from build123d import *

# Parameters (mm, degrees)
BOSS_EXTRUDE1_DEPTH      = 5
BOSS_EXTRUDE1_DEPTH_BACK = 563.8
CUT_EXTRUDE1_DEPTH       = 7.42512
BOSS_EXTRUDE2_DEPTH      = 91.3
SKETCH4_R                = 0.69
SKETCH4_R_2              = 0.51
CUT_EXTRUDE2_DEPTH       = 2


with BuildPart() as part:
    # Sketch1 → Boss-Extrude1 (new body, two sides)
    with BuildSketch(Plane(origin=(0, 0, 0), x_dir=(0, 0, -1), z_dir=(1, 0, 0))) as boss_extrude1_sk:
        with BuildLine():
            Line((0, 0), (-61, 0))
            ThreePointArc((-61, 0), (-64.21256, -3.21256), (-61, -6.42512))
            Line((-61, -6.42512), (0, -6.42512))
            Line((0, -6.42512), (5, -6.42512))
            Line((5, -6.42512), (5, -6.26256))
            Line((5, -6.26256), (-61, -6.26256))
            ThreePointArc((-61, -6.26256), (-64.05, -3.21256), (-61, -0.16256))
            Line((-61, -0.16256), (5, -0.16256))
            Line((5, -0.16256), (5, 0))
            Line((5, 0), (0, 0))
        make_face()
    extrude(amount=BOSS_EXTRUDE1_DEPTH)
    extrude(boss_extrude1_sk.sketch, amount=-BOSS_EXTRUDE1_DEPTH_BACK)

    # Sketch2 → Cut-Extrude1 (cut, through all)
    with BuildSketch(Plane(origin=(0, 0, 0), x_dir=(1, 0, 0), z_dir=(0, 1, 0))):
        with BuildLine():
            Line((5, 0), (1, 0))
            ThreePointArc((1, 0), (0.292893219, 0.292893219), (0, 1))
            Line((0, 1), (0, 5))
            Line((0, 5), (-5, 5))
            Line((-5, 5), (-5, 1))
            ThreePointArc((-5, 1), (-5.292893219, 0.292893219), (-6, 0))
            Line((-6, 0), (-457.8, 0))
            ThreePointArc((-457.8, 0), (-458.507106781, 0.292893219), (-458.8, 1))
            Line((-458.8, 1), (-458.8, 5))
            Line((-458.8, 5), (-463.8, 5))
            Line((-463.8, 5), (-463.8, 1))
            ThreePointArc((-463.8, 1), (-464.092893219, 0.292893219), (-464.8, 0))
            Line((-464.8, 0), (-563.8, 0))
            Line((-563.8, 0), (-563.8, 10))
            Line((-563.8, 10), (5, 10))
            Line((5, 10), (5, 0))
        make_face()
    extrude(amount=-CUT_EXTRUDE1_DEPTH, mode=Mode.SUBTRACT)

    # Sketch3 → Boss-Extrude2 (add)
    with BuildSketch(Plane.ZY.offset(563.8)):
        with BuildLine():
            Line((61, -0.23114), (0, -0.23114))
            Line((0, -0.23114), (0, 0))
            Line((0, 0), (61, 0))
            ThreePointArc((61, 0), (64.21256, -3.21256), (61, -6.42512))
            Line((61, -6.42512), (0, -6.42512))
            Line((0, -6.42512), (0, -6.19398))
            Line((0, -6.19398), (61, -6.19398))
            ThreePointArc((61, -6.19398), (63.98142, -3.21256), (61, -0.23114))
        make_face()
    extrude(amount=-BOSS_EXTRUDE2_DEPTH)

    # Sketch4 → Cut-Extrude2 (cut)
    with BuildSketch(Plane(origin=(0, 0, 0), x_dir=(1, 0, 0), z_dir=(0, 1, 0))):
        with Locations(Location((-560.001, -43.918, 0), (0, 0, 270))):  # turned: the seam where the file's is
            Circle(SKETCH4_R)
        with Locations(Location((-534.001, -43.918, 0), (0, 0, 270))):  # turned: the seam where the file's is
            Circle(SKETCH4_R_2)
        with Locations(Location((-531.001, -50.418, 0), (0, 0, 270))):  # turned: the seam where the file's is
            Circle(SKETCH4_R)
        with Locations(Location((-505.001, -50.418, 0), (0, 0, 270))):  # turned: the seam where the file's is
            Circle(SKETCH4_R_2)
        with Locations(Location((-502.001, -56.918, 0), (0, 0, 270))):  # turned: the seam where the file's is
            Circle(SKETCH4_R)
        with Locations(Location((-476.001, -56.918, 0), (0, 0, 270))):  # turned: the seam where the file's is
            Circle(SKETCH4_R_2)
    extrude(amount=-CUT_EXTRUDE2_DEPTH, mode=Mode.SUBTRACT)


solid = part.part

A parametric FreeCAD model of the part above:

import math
import FreeCAD as App
import Part
import Sketcher

V = App.Vector
Q = App.Units.Quantity

doc = App.newDocument("Part")
params = doc.addObject("Spreadsheet::Sheet", "Params")
for row, (alias, value) in enumerate([
    ("sketch1_height", "66 mm"),
    ("sketch1_radius", "3.05 mm"),
    ("pad1_length", "5 mm"),
    ("pad1_length2", "563.8 mm"),
    ("sketch2_radius", "1 mm"),
    ("sketch2_width", "4 mm"),
    ("sketch2_width2", "99 mm"),
    ("sketch2_width3", "5 mm"),
    ("sketch2_height", "10 mm"),
    ("sketch3_height", "61 mm"),
    ("pad2_length", "91.3 mm"),
    ("sketch4_diameter", "1.38 mm"),
    ("sketch4_diameter2", "1.02 mm"),
    ("pocket2_length", "2 mm"),
], start=1):
    params.set(f"A{row}", alias)
    params.set(f"B{row}", "=" + value)
    params.setAlias(f"B{row}", alias)

body = doc.addObject("PartDesign::Body", "Body")

# Sketch on YZ plane
sketch1 = doc.addObject("Sketcher::SketchObject", "Sketch")
body.addObject(sketch1)
sketch1.AttachmentSupport = (doc.YZ_Plane, [""])
sketch1.MapMode = "FlatFace"
sketch1.addGeometry([
    Part.ArcOfCircle(Part.Circle(V(-3.21256, 61, 0), V(0, 0, 1), 3.21256), math.radians(0), math.radians(180)),  # 0
    Part.LineSegment(V(-6.42512, 61, 0), V(-6.42512, -5, 0)),  # 1
    Part.LineSegment(V(-6.42512, -5, 0), V(-6.26256, -5, 0)),  # 2
    Part.LineSegment(V(-6.26256, -5, 0), V(-6.26256, 61, 0)),  # 3
    Part.ArcOfCircle(Part.Circle(V(-3.21256, 61, 0), V(0, 0, 1), 3.05), math.radians(0), math.radians(180)),  # 4
    Part.LineSegment(V(-0.16256, 61, 0), V(-0.16256, -5, 0)),  # 5
    Part.LineSegment(V(-0.16256, -5, 0), V(0, -5, 0)),  # 6
    Part.LineSegment(V(0, -5, 0), V(0, 61, 0)),  # 7
], False)
sketch1.addConstraint([
    Sketcher.Constraint("Tangent", 0, 2, 1, 1),
    Sketcher.Constraint("Coincident", 1, 2, 2, 1),
    Sketcher.Constraint("Coincident", 2, 2, 3, 1),
    Sketcher.Constraint("Tangent", 3, 2, 4, 2),
    Sketcher.Constraint("Tangent", 4, 1, 5, 1),
    Sketcher.Constraint("Coincident", 5, 2, 6, 1),
    Sketcher.Constraint("Coincident", 6, 2, 7, 1),
    Sketcher.Constraint("Tangent", 7, 2, 0, 1),
    Sketcher.Constraint("Vertical", 1),
    Sketcher.Constraint("Horizontal", 2),
    Sketcher.Constraint("Vertical", 3),
    Sketcher.Constraint("Vertical", 5),
    Sketcher.Constraint("Horizontal", 6),
    Sketcher.Constraint("Vertical", 7),
    Sketcher.Constraint("Coincident", 4, 3, 0, 3),
    Sketcher.Constraint("PointOnObject", 6, 2, -2),
    Sketcher.Constraint("Horizontal", 2, 2, 5, 2),
    Sketcher.Constraint("DistanceY", 1, 2, 1, 1, Q("66 mm")),
    Sketcher.Constraint("Radius", 4, Q("3.05 mm")),
    Sketcher.Constraint("DistanceY", -1, 1, 0, 3, Q("61 mm")),
    Sketcher.Constraint("Radius", 0, Q("3.21256 mm")),
])
sketch1.setExpression("Constraints[17]", "Params.sketch1_height")
sketch1.setExpression("Constraints[18]", "Params.sketch1_radius")
pad1 = doc.addObject("PartDesign::Pad", "Pad")
body.addObject(pad1)
pad1.Profile = sketch1
pad1.Type = "TwoLengths"
pad1.setExpression("Length", "Params.pad1_length")
pad1.setExpression("Length2", "Params.pad1_length2")

# Sketch on XZ plane
sketch2 = doc.addObject("Sketcher::SketchObject", "Sketch001")
body.addObject(sketch2)
sketch2.AttachmentSupport = (doc.XZ_Plane, [""])
sketch2.MapMode = "FlatFace"
sketch2.addGeometry([
    Part.LineSegment(V(1, 0, 0), V(5, 0, 0)),  # 0
    Part.LineSegment(V(5, 0, 0), V(5, -10, 0)),  # 1
    Part.LineSegment(V(5, -10, 0), V(-563.8, -10, 0)),  # 2
    Part.LineSegment(V(-563.8, -10, 0), V(-563.8, 0, 0)),  # 3
    Part.LineSegment(V(-563.8, 0, 0), V(-464.8, 0, 0)),  # 4
    Part.ArcOfCircle(Part.Circle(V(-464.8, -1, 0), V(0, 0, 1), 1), math.radians(0), math.radians(90)),  # 5
    Part.LineSegment(V(-463.8, -1, 0), V(-463.8, -5, 0)),  # 6
    Part.LineSegment(V(-463.8, -5, 0), V(-458.8, -5, 0)),  # 7
    Part.LineSegment(V(-458.8, -5, 0), V(-458.8, -1, 0)),  # 8
    Part.ArcOfCircle(Part.Circle(V(-457.8, -1, 0), V(0, 0, 1), 1), math.radians(90), math.radians(180)),  # 9
    Part.LineSegment(V(-457.8, 0, 0), V(-6, 0, 0)),  # 10
    Part.ArcOfCircle(Part.Circle(V(-6, -1, 0), V(0, 0, 1), 1), math.radians(0), math.radians(90)),  # 11
    Part.LineSegment(V(-5, -1, 0), V(-5, -5, 0)),  # 12
    Part.LineSegment(V(-5, -5, 0), V(0, -5, 0)),  # 13
    Part.LineSegment(V(0, -5, 0), V(0, -1, 0)),  # 14
    Part.ArcOfCircle(Part.Circle(V(1, -1, 0), V(0, 0, 1), 1), math.radians(90), math.radians(180)),  # 15
], False)
sketch2.addConstraint([
    Sketcher.Constraint("Coincident", 0, 2, 1, 1),
    Sketcher.Constraint("Coincident", 1, 2, 2, 1),
    Sketcher.Constraint("Coincident", 2, 2, 3, 1),
    Sketcher.Constraint("Coincident", 3, 2, 4, 1),
    Sketcher.Constraint("Tangent", 4, 2, 5, 2),
    Sketcher.Constraint("Tangent", 5, 1, 6, 1),
    Sketcher.Constraint("Coincident", 6, 2, 7, 1),
    Sketcher.Constraint("Coincident", 7, 2, 8, 1),
    Sketcher.Constraint("Tangent", 8, 2, 9, 2),
    Sketcher.Constraint("Tangent", 9, 1, 10, 1),
    Sketcher.Constraint("Tangent", 10, 2, 11, 2),
    Sketcher.Constraint("Tangent", 11, 1, 12, 1),
    Sketcher.Constraint("Coincident", 12, 2, 13, 1),
    Sketcher.Constraint("Coincident", 13, 2, 14, 1),
    Sketcher.Constraint("Tangent", 14, 2, 15, 2),
    Sketcher.Constraint("Tangent", 15, 1, 0, 1),
    Sketcher.Constraint("Horizontal", 0),
    Sketcher.Constraint("Vertical", 1),
    Sketcher.Constraint("Horizontal", 2),
    Sketcher.Constraint("Vertical", 3),
    Sketcher.Constraint("Horizontal", 4),
    Sketcher.Constraint("Vertical", 6),
    Sketcher.Constraint("Horizontal", 7),
    Sketcher.Constraint("Vertical", 8),
    Sketcher.Constraint("Horizontal", 10),
    Sketcher.Constraint("Vertical", 12),
    Sketcher.Constraint("Horizontal", 13),
    Sketcher.Constraint("Vertical", 14),
    Sketcher.Constraint("Equal", 5, 9),
    Sketcher.Constraint("Equal", 9, 11),
    Sketcher.Constraint("Equal", 11, 15),
    Sketcher.Constraint("PointOnObject", 0, 2, -1),
    Sketcher.Constraint("PointOnObject", 3, 2, -1),
    Sketcher.Constraint("PointOnObject", 9, 1, -1),
    Sketcher.Constraint("PointOnObject", 13, 2, -2),
    Sketcher.Constraint("Horizontal", 7, 2, 12, 2),
    Sketcher.Constraint("Equal", 7, 13),
    Sketcher.Constraint("Equal", 0, 6),
    Sketcher.Constraint("Radius", 5, Q("1 mm")),
    Sketcher.Constraint("DistanceX", 0, 1, 0, 2, Q("4 mm")),
    Sketcher.Constraint("DistanceX", 4, 1, 4, 2, Q("99 mm")),
    Sketcher.Constraint("DistanceX", 7, 1, 7, 2, Q("5 mm")),
    Sketcher.Constraint("DistanceY", 1, 2, 1, 1, Q("10 mm")),
    Sketcher.Constraint("DistanceX", 2, 2, 2, 1, Q("568.8 mm")),
])
sketch2.setExpression("Constraints[38]", "Params.sketch2_radius")
sketch2.setExpression("Constraints[39]", "Params.sketch2_width")
sketch2.setExpression("Constraints[40]", "Params.sketch2_width2")
sketch2.setExpression("Constraints[41]", "Params.sketch2_width3")
sketch2.setExpression("Constraints[42]", "Params.sketch2_height")
pocket1 = doc.addObject("PartDesign::Pocket", "Pocket")
body.addObject(pocket1)
pocket1.Profile = sketch2
pocket1.Type = "ThroughAll"
pocket1.Reversed = True

# Sketch on YZ plane
sketch3 = doc.addObject("Sketcher::SketchObject", "Sketch002")
body.addObject(sketch3)
sketch3.AttachmentSupport = (doc.YZ_Plane, [""])
sketch3.MapMode = "FlatFace"
sketch3.AttachmentOffset = App.Placement(V(0, 0, -563.8), App.Rotation())
sketch3.addGeometry([
    Part.LineSegment(V(-0.23114, 0, 0), V(-0.23114, 61, 0)),  # 0
    Part.ArcOfCircle(Part.Circle(V(-3.21256, 61, 0), V(0, 0, 1), 2.98142), math.radians(0), math.radians(180)),  # 1
    Part.LineSegment(V(-6.19398, 61, 0), V(-6.19398, 0, 0)),  # 2
    Part.LineSegment(V(-6.19398, 0, 0), V(-6.42512, 0, 0)),  # 3
    Part.LineSegment(V(-6.42512, 0, 0), V(-6.42512, 61, 0)),  # 4
    Part.ArcOfCircle(Part.Circle(V(-3.21256, 61, 0), V(0, 0, 1), 3.21256), math.radians(0), math.radians(180)),  # 5
    Part.LineSegment(V(0, 61, 0), V(0, 0, 0)),  # 6
    Part.LineSegment(V(0, 0, 0), V(-0.23114, 0, 0)),  # 7
], False)
sketch3.addConstraint([
    Sketcher.Constraint("Tangent", 0, 2, 1, 1),
    Sketcher.Constraint("Tangent", 1, 2, 2, 1),
    Sketcher.Constraint("Coincident", 2, 2, 3, 1),
    Sketcher.Constraint("Coincident", 3, 2, 4, 1),
    Sketcher.Constraint("Tangent", 4, 2, 5, 2),
    Sketcher.Constraint("Tangent", 5, 1, 6, 1),
    Sketcher.Constraint("Coincident", 6, 2, 7, 1),
    Sketcher.Constraint("Coincident", 7, 2, 0, 1),
    Sketcher.Constraint("Vertical", 0),
    Sketcher.Constraint("Vertical", 2),
    Sketcher.Constraint("Horizontal", 3),
    Sketcher.Constraint("Vertical", 4),
    Sketcher.Constraint("Vertical", 6),
    Sketcher.Constraint("Horizontal", 7),
    Sketcher.Constraint("Coincident", 6, 2, -1, 1),
    Sketcher.Constraint("Coincident", 5, 3, 1, 3),
    Sketcher.Constraint("PointOnObject", 2, 2, -1),
    Sketcher.Constraint("DistanceY", 0, 1, 0, 2, Q("61 mm")),
    Sketcher.Constraint("Radius", 1, Q("2.98142 mm")),
    Sketcher.Constraint("Radius", 5, Q("3.21256 mm")),
])
sketch3.setExpression("Constraints[17]", "Params.sketch3_height")
pad2 = doc.addObject("PartDesign::Pad", "Pad001")
body.addObject(pad2)
pad2.Profile = sketch3
pad2.setExpression("Length", "Params.pad2_length")

# Sketch on XZ plane
sketch4 = doc.addObject("Sketcher::SketchObject", "Sketch003")
body.addObject(sketch4)
sketch4.AttachmentSupport = (doc.XZ_Plane, [""])
sketch4.MapMode = "FlatFace"
sketch4.addGeometry([
    Part.Circle(V(-560.001, 43.918, 0), V(0, 0, 1), 0.69),  # 0
    Part.Circle(V(-534.001, 43.918, 0), V(0, 0, 1), 0.51),  # 1
    Part.Circle(V(-531.001, 50.418, 0), V(0, 0, 1), 0.69),  # 2
    Part.Circle(V(-505.001, 50.418, 0), V(0, 0, 1), 0.51),  # 3
    Part.Circle(V(-502.001, 56.918, 0), V(0, 0, 1), 0.69),  # 4
    Part.Circle(V(-476.001, 56.918, 0), V(0, 0, 1), 0.51),  # 5
], False)
sketch4.addConstraint([
    Sketcher.Constraint("Equal", 0, 2),
    Sketcher.Constraint("Equal", 1, 3),
    Sketcher.Constraint("Equal", 2, 4),
    Sketcher.Constraint("Equal", 3, 5),
    Sketcher.Constraint("Horizontal", 0, 3, 1, 3),
    Sketcher.Constraint("Horizontal", 2, 3, 3, 3),
    Sketcher.Constraint("Horizontal", 4, 3, 5, 3),
    Sketcher.Constraint("Diameter", 0, Q("1.38 mm")),
    Sketcher.Constraint("Diameter", 1, Q("1.02 mm")),
    Sketcher.Constraint("DistanceX", 0, 3, 1, 3, Q("26 mm")),
    Sketcher.Constraint("DistanceX", 1, 3, 2, 3, Q("3 mm")),
    Sketcher.Constraint("DistanceX", 2, 3, 3, 3, Q("26 mm")),
    Sketcher.Constraint("DistanceX", 3, 3, 4, 3, Q("3 mm")),
    Sketcher.Constraint("DistanceY", 1, 3, 4, 3, Q("13 mm")),
    Sketcher.Constraint("DistanceX", 4, 3, 5, 3, Q("26 mm")),
    Sketcher.Constraint("DistanceY", 1, 3, 2, 3, Q("6.5 mm")),
    Sketcher.Constraint("DistanceX", 0, 3, -1, 1, Q("560.001 mm")),
    Sketcher.Constraint("DistanceY", -1, 1, 0, 3, Q("43.918 mm")),
])
sketch4.setExpression("Constraints[7]", "Params.sketch4_diameter")
sketch4.setExpression("Constraints[8]", "Params.sketch4_diameter2")
pocket2 = doc.addObject("PartDesign::Pocket", "Pocket001")
body.addObject(pocket2)
pocket2.Profile = sketch4
pocket2.setExpression("Length", "Params.pocket2_length")
pocket2.Reversed = True

doc.recompute()
